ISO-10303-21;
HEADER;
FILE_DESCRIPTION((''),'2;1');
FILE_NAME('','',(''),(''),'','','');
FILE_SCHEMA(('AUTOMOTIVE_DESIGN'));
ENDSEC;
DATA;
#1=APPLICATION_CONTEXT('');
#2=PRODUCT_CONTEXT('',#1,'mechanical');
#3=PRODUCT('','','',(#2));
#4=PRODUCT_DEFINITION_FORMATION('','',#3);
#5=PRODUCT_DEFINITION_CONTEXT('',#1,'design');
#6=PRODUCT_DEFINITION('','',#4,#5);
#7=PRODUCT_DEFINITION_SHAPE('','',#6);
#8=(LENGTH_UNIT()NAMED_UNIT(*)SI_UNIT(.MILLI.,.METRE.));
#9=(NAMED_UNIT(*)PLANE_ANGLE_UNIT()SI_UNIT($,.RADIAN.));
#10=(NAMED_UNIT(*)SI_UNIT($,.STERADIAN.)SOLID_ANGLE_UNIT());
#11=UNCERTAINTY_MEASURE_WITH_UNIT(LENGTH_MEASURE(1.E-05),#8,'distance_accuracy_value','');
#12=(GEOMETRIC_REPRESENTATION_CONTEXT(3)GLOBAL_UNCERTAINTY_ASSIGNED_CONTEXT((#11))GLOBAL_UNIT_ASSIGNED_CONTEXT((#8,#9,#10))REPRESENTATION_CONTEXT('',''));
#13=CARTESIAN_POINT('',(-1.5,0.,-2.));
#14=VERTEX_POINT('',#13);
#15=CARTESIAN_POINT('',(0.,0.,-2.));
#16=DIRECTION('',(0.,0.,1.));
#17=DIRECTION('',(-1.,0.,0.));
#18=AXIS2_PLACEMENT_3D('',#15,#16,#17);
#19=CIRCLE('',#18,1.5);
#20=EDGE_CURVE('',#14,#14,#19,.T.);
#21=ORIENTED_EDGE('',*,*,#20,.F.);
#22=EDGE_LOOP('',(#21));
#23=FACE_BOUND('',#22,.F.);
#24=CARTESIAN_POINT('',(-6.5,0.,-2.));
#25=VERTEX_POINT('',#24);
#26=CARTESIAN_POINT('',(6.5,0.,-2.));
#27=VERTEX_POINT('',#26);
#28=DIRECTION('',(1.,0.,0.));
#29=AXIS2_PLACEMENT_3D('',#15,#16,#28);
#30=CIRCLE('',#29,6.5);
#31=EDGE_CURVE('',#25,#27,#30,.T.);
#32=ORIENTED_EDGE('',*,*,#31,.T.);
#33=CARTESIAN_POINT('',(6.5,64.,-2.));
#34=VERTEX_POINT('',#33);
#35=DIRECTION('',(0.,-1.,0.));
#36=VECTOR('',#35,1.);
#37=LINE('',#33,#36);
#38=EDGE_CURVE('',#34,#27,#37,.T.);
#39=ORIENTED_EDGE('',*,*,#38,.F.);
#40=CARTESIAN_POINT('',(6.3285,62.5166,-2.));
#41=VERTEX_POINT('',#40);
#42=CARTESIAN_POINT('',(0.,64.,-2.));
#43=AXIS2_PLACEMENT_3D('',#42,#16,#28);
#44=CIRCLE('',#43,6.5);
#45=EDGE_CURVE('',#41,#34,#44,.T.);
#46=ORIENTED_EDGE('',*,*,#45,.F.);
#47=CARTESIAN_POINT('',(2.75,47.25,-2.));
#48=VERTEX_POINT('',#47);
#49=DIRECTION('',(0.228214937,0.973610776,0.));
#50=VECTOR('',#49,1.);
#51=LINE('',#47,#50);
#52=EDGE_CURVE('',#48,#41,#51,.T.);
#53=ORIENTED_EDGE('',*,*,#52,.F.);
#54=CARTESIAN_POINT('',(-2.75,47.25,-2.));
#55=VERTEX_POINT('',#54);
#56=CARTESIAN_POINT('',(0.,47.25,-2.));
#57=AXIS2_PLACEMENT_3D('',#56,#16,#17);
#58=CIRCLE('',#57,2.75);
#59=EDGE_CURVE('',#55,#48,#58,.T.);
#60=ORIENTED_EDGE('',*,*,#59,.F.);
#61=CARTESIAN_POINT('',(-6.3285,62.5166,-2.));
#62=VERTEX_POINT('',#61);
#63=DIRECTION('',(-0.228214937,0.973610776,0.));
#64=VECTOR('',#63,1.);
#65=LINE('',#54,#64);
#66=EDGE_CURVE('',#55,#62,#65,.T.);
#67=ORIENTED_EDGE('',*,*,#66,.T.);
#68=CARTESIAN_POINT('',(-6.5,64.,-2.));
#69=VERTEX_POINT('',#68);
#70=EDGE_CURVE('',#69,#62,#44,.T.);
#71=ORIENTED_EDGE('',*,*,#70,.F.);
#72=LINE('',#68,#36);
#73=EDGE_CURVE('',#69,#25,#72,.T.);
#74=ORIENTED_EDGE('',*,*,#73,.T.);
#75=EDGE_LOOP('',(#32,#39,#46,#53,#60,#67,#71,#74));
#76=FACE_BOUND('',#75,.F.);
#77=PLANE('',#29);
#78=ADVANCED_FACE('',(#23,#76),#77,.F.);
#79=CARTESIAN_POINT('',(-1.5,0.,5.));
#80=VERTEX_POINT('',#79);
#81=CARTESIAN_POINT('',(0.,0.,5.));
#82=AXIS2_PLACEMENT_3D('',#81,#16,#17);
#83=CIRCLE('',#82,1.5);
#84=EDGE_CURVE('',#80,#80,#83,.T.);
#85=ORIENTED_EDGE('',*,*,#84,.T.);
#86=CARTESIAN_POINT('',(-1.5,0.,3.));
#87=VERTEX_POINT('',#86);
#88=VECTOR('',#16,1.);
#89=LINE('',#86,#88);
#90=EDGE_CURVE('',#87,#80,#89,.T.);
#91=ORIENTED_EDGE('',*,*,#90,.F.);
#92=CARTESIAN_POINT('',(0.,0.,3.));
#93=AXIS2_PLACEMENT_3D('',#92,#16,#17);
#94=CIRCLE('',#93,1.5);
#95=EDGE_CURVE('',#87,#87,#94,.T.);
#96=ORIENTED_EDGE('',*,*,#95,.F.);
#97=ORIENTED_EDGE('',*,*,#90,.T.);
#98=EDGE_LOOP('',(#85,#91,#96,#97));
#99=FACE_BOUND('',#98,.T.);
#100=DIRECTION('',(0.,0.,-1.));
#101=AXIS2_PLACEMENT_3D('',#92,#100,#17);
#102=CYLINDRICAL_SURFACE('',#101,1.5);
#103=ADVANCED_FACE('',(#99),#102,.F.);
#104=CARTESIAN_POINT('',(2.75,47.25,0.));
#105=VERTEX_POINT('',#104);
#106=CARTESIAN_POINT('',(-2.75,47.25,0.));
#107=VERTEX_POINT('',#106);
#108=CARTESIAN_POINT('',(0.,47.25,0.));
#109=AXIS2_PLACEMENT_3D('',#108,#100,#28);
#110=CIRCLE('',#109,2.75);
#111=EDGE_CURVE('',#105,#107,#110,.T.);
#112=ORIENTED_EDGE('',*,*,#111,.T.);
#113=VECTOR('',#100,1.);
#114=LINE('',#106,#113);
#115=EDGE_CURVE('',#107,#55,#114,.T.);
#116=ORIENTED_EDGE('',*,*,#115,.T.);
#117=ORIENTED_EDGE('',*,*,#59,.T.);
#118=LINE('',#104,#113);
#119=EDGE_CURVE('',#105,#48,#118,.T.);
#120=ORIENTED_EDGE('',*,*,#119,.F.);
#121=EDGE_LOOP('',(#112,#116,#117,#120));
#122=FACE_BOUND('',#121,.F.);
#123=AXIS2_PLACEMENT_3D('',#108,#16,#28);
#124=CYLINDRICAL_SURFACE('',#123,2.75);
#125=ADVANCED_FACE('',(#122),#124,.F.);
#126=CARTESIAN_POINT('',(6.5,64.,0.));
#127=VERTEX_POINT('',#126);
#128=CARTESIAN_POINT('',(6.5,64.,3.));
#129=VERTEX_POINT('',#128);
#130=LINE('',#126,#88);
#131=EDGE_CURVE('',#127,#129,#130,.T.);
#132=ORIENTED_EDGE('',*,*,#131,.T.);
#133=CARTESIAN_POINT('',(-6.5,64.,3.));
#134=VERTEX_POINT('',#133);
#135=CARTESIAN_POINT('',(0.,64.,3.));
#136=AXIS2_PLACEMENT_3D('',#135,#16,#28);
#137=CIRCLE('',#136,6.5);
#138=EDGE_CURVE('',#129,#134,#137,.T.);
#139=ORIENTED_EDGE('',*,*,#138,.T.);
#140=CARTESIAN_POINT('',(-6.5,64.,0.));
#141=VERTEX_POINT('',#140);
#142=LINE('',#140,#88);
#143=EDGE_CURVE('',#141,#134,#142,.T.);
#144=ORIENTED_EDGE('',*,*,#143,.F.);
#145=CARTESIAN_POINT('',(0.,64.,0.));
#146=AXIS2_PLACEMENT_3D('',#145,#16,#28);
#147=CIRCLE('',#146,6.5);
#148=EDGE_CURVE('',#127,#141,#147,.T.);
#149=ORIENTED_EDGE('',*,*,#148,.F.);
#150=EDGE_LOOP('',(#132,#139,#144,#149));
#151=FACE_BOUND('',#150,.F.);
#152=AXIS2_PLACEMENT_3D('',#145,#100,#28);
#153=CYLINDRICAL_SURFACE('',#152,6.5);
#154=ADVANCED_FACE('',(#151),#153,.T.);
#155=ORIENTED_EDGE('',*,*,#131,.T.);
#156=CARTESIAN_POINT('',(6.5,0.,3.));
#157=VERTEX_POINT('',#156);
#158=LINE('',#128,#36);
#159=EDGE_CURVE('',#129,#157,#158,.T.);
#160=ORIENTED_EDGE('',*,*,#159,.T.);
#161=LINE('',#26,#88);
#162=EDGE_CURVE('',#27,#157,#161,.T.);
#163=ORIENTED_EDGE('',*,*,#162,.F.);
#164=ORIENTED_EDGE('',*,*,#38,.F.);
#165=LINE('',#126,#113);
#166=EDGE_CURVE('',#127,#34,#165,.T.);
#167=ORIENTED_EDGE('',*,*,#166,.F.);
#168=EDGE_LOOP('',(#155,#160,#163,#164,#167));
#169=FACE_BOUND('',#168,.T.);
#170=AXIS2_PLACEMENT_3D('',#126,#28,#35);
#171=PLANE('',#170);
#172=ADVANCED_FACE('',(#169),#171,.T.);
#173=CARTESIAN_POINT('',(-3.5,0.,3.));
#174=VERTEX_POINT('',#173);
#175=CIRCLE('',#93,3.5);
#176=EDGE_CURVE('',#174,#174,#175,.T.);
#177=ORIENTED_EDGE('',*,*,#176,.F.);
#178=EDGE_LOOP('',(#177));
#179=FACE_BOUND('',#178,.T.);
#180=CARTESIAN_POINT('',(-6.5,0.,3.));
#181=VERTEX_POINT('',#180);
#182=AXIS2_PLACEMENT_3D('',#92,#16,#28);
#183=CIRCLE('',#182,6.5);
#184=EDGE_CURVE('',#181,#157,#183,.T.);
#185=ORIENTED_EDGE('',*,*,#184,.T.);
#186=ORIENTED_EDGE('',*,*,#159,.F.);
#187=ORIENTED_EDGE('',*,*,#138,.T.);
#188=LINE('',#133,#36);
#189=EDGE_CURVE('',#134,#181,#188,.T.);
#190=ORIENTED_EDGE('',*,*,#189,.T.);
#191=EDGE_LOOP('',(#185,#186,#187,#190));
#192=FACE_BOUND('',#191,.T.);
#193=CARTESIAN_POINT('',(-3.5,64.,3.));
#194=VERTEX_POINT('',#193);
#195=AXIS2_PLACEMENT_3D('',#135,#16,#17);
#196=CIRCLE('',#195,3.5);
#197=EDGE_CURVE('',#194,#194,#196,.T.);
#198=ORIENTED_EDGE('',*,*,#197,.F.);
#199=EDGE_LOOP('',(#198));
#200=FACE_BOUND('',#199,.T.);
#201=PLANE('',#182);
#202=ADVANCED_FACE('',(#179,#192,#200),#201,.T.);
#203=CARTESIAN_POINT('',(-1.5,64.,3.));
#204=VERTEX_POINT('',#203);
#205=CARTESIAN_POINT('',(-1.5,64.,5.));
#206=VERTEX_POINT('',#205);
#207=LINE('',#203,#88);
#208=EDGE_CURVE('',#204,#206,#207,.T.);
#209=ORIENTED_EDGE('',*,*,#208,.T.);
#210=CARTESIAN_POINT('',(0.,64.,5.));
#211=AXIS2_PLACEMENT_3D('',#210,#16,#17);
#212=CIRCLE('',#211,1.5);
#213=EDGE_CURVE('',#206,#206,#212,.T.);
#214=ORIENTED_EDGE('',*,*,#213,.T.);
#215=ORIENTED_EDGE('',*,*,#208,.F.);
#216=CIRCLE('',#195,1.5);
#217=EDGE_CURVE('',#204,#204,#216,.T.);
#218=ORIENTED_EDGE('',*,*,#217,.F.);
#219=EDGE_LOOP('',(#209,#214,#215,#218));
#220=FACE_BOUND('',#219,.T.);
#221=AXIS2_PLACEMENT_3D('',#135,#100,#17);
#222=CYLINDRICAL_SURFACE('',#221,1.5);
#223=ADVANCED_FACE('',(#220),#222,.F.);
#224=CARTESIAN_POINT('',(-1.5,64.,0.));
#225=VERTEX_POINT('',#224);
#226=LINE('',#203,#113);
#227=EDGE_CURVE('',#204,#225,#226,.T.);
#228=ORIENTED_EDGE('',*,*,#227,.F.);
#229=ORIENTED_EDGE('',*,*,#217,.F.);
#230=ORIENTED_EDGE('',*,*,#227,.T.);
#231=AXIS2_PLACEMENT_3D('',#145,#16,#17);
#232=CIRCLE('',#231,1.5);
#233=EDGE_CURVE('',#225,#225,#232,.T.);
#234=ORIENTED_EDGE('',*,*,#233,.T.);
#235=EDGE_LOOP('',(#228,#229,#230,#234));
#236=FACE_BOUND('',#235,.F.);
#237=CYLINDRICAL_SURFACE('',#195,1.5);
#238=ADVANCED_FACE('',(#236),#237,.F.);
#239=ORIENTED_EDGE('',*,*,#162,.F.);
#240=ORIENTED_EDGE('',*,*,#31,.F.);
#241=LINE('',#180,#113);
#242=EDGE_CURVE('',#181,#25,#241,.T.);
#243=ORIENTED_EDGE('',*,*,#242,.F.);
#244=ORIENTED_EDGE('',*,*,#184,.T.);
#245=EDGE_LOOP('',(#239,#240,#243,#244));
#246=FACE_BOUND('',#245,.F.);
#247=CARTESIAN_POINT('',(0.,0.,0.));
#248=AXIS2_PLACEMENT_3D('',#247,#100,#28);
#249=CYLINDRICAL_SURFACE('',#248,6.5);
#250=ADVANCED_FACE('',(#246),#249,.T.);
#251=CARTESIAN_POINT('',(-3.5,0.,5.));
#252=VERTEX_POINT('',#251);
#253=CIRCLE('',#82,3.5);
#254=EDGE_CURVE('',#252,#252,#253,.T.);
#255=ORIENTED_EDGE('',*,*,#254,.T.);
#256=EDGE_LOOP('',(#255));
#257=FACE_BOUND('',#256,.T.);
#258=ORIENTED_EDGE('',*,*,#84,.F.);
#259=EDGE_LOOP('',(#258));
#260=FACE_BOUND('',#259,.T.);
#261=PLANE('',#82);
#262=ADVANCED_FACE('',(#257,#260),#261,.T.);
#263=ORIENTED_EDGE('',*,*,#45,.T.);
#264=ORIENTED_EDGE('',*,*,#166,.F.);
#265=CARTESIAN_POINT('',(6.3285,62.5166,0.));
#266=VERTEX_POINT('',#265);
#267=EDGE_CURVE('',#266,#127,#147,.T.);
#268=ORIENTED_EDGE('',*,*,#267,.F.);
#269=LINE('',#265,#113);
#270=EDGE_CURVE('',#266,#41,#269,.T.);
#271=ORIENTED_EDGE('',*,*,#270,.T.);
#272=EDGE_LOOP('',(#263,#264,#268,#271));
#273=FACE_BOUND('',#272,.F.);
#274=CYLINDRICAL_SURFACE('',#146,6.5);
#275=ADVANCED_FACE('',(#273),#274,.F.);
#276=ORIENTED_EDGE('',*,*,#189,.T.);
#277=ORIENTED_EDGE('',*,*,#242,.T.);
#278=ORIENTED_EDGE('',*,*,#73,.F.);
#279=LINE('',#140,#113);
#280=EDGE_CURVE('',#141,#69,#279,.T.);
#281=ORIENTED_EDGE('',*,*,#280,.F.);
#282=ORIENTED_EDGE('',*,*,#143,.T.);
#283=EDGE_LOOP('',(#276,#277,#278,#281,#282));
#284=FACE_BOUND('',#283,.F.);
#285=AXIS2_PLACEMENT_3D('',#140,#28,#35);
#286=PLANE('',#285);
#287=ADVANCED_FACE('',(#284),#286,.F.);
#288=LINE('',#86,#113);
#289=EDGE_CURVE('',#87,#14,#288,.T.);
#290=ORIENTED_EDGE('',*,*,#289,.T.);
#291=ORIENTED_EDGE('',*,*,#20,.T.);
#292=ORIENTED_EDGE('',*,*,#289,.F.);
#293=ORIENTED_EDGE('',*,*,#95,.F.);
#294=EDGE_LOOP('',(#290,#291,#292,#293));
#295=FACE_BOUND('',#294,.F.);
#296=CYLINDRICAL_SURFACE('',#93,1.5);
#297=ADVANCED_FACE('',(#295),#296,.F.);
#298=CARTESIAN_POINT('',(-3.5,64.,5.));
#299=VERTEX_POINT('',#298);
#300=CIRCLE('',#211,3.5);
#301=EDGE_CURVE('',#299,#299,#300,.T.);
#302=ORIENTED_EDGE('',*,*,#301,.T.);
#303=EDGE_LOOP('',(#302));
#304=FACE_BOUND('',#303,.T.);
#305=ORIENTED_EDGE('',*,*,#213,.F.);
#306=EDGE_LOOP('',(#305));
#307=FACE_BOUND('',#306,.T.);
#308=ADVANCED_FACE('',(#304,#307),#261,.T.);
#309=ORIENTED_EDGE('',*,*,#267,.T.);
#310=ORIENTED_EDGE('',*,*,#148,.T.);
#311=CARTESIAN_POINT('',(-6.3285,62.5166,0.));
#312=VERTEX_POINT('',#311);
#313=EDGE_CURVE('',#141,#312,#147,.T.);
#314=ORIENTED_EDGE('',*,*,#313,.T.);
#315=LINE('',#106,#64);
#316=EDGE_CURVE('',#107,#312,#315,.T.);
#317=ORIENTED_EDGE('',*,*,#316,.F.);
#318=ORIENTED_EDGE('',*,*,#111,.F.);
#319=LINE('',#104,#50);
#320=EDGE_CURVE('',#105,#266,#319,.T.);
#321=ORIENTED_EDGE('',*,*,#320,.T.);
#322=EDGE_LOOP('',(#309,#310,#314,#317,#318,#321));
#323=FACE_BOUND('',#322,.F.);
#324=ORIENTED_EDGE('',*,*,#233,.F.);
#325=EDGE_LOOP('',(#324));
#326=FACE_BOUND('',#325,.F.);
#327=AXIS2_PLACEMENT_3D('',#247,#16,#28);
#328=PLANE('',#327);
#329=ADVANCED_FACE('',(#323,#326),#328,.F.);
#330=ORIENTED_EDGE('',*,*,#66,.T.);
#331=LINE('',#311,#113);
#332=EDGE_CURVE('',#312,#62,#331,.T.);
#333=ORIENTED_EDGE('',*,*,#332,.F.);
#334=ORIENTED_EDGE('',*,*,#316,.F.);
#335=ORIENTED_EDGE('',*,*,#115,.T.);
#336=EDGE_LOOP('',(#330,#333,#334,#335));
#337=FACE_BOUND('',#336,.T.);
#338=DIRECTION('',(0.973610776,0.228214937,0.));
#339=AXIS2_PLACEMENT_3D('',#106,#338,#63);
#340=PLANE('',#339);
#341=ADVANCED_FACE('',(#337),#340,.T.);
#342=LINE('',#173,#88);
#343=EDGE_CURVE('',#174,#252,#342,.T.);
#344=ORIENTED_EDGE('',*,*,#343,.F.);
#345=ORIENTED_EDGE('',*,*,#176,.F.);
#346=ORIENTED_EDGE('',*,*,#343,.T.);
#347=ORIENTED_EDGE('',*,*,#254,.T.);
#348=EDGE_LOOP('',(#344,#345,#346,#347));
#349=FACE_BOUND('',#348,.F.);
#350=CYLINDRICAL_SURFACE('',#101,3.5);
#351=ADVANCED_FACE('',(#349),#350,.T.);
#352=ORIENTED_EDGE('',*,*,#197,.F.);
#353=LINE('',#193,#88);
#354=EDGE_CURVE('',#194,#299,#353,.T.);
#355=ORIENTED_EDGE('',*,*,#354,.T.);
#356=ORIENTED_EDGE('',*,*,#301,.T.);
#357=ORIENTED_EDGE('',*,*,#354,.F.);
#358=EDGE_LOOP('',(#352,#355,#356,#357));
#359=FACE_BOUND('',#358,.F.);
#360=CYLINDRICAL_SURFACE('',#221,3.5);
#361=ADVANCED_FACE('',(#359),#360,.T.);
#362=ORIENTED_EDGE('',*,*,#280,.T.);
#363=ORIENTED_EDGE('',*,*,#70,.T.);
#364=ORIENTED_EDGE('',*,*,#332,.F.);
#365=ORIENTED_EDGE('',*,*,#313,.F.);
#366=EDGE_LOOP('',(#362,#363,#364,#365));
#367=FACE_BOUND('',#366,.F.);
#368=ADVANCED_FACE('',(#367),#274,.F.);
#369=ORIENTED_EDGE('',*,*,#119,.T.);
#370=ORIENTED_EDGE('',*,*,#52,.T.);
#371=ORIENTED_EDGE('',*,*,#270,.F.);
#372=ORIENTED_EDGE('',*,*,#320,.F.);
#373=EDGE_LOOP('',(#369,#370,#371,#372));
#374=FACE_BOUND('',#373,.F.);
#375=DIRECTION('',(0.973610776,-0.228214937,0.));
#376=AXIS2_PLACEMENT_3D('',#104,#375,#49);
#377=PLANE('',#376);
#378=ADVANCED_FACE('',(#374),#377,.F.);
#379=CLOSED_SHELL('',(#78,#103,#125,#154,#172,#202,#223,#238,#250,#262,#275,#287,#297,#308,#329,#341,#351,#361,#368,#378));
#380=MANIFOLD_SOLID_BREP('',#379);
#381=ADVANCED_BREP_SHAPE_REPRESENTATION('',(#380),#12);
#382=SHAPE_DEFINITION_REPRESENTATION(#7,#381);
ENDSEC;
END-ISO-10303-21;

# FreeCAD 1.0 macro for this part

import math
import FreeCAD as App
import Part
import Sketcher

V = App.Vector
Q = App.Units.Quantity

doc = App.newDocument("Part")
body = doc.addObject("PartDesign::Body", "Body")

# Sketch on XY plane
sketch1 = body.newObject("Sketcher::SketchObject", "Sketch")
sketch1.AttachmentSupport = (doc.getObject("XY_Plane"), [""])
sketch1.MapMode = "FlatFace"
sketch1.addGeometry([
    Part.ArcOfCircle(Part.Circle(V(0, 0, 0), V(0, 0, 1), 6.5), math.radians(180), math.radians(360)),
    Part.LineSegment(V(6.5, 0, 0), V(6.5, 64, 0)),
    Part.ArcOfCircle(Part.Circle(V(0, 64, 0), V(0, 0, 1), 6.5), math.radians(0), math.radians(180)),
    Part.LineSegment(V(-6.5, 64, 0), V(-6.5, 0, 0)),
], False)
sketch1.addConstraint([
    Sketcher.Constraint("Tangent", 0, 2, 1, 1),
    Sketcher.Constraint("Tangent", 1, 2, 2, 1),
    Sketcher.Constraint("Tangent", 2, 2, 3, 1),
    Sketcher.Constraint("Tangent", 3, 2, 0, 1),
    Sketcher.Constraint("Vertical", 1),
    Sketcher.Constraint("Vertical", 3),
    Sketcher.Constraint("Coincident", 0, 3, -1, 1),
    Sketcher.Constraint("Radius", 0, Q("6.5 mm")),
    Sketcher.Constraint("DistanceY", 1, 1, 1, 2, Q("64 mm")),
])
pad1 = body.newObject("PartDesign::Pad", "Pad")
pad1.Profile = sketch1
pad1.Length = 3

# Sketch on XY plane
sketch2 = body.newObject("Sketcher::SketchObject", "Sketch001")
sketch2.AttachmentSupport = (doc.getObject("XY_Plane"), [""])
sketch2.MapMode = "FlatFace"
sketch2.addGeometry([
    Part.ArcOfCircle(Part.Circle(V(0, 0, 0), V(0, 0, 1), 6.5), math.radians(180), math.radians(360)),  # 0
    Part.LineSegment(V(6.5, 0, 0), V(6.5, 64, 0)),  # 1
    Part.ArcOfCircle(Part.Circle(V(0, 64, 0), V(0, 0, 1), 6.5), math.radians(-13.191965), math.radians(0)),  # 2
    Part.LineSegment(V(6.3285, 62.5166, 0), V(2.75, 47.25, 0)),  # 3
    Part.ArcOfCircle(Part.Circle(V(0, 47.25, 0), V(0, 0, 1), 2.75), math.radians(180), math.radians(360)),  # 4
    Part.LineSegment(V(-2.75, 47.25, 0), V(-6.3285, 62.5166, 0)),  # 5
    Part.ArcOfCircle(Part.Circle(V(0, 64, 0), V(0, 0, 1), 6.5), math.radians(180), math.radians(193.191965)),  # 6
    Part.LineSegment(V(-6.5, 64, 0), V(-6.5, 0, 0)),  # 7
], False)
sketch2.addConstraint([
    Sketcher.Constraint("Tangent", 0, 2, 1, 1),
    Sketcher.Constraint("Tangent", 1, 2, 2, 2),
    Sketcher.Constraint("Tangent", 2, 1, 3, 1),
    Sketcher.Constraint("Coincident", 3, 2, 4, 2),
    Sketcher.Constraint("Coincident", 4, 1, 5, 1),
    Sketcher.Constraint("Tangent", 5, 2, 6, 2),
    Sketcher.Constraint("Tangent", 6, 1, 7, 1),
    Sketcher.Constraint("Tangent", 7, 2, 0, 1),
    Sketcher.Constraint("Vertical", 1),
    Sketcher.Constraint("Vertical", 7),
    Sketcher.Constraint("Coincident", 0, 3, -1, 1),
    Sketcher.Constraint("Coincident", 6, 3, 2, 3),
    Sketcher.Constraint("Equal", 0, 2),
    Sketcher.Constraint("Symmetric", 3, 2, 4, 1, -2),
    Sketcher.Constraint("Horizontal", 4, 3, 3, 2),
    Sketcher.Constraint("Radius", 0, Q("6.5 mm")),
    Sketcher.Constraint("DistanceY", 1, 1, 1, 2, Q("64 mm")),
    Sketcher.Constraint("Radius", 4, Q("2.75 mm")),
    Sketcher.Constraint("DistanceY", -1, 1, 4, 3, Q("47.25 mm")),
])
pad2 = body.newObject("PartDesign::Pad", "Pad001")
pad2.Profile = sketch2
pad2.Length = 2
pad2.Reversed = True

# Sketch on XY plane
sketch3 = body.newObject("Sketcher::SketchObject", "Sketch002")
sketch3.AttachmentSupport = (doc.getObject("XY_Plane"), [""])
sketch3.MapMode = "FlatFace"
sketch3.AttachmentOffset = App.Placement(V(0, 0, 3), App.Rotation())
sketch3.addGeometry([
    Part.Circle(V(0, 0, 0), V(0, 0, 1), 1.5),
    Part.Circle(V(0, 64, 0), V(0, 0, 1), 1.5),
], False)
sketch3.addConstraint([
    Sketcher.Constraint("Coincident", 0, 3, -1, 1),
    Sketcher.Constraint("Equal", 0, 1),
    Sketcher.Constraint("PointOnObject", 1, 3, -2),
    Sketcher.Constraint("Diameter", 0, Q("3 mm")),
    Sketcher.Constraint("DistanceY", -1, 1, 1, 3, Q("64 mm")),
])
pocket1 = body.newObject("PartDesign::Pocket", "Pocket")
pocket1.Profile = sketch3
pocket1.Length = 5

# Sketch on XY plane
sketch4 = body.newObject("Sketcher::SketchObject", "Sketch003")
sketch4.AttachmentSupport = (doc.getObject("XY_Plane"), [""])
sketch4.MapMode = "FlatFace"
sketch4.AttachmentOffset = App.Placement(V(0, 0, 3), App.Rotation())
sketch4.addGeometry([
    Part.Circle(V(0, 64, 0), V(0, 0, 1), 3.5),
    Part.Circle(V(0, 64, 0), V(0, 0, 1), 1.5),
    Part.Circle(V(0, 0, 0), V(0, 0, 1), 3.5),
    Part.Circle(V(0, 0, 0), V(0, 0, 1), 1.5),
], False)
sketch4.addConstraint([
    Sketcher.Constraint("Coincident", 2, 3, -1, 1),
    Sketcher.Constraint("Coincident", 3, 3, -1, 1),
    Sketcher.Constraint("Coincident", 1, 3, 0, 3),
    Sketcher.Constraint("Equal", 0, 2),
    Sketcher.Constraint("Equal", 1, 3),
    Sketcher.Constraint("PointOnObject", 0, 3, -2),
    Sketcher.Constraint("Diameter", 0, Q("7 mm")),
    Sketcher.Constraint("Diameter", 1, Q("3 mm")),
    Sketcher.Constraint("DistanceY", -1, 1, 0, 3, Q("64 mm")),
])
pad3 = body.newObject("PartDesign::Pad", "Pad002")
pad3.Profile = sketch4
pad3.Length = 2

doc.recompute()
